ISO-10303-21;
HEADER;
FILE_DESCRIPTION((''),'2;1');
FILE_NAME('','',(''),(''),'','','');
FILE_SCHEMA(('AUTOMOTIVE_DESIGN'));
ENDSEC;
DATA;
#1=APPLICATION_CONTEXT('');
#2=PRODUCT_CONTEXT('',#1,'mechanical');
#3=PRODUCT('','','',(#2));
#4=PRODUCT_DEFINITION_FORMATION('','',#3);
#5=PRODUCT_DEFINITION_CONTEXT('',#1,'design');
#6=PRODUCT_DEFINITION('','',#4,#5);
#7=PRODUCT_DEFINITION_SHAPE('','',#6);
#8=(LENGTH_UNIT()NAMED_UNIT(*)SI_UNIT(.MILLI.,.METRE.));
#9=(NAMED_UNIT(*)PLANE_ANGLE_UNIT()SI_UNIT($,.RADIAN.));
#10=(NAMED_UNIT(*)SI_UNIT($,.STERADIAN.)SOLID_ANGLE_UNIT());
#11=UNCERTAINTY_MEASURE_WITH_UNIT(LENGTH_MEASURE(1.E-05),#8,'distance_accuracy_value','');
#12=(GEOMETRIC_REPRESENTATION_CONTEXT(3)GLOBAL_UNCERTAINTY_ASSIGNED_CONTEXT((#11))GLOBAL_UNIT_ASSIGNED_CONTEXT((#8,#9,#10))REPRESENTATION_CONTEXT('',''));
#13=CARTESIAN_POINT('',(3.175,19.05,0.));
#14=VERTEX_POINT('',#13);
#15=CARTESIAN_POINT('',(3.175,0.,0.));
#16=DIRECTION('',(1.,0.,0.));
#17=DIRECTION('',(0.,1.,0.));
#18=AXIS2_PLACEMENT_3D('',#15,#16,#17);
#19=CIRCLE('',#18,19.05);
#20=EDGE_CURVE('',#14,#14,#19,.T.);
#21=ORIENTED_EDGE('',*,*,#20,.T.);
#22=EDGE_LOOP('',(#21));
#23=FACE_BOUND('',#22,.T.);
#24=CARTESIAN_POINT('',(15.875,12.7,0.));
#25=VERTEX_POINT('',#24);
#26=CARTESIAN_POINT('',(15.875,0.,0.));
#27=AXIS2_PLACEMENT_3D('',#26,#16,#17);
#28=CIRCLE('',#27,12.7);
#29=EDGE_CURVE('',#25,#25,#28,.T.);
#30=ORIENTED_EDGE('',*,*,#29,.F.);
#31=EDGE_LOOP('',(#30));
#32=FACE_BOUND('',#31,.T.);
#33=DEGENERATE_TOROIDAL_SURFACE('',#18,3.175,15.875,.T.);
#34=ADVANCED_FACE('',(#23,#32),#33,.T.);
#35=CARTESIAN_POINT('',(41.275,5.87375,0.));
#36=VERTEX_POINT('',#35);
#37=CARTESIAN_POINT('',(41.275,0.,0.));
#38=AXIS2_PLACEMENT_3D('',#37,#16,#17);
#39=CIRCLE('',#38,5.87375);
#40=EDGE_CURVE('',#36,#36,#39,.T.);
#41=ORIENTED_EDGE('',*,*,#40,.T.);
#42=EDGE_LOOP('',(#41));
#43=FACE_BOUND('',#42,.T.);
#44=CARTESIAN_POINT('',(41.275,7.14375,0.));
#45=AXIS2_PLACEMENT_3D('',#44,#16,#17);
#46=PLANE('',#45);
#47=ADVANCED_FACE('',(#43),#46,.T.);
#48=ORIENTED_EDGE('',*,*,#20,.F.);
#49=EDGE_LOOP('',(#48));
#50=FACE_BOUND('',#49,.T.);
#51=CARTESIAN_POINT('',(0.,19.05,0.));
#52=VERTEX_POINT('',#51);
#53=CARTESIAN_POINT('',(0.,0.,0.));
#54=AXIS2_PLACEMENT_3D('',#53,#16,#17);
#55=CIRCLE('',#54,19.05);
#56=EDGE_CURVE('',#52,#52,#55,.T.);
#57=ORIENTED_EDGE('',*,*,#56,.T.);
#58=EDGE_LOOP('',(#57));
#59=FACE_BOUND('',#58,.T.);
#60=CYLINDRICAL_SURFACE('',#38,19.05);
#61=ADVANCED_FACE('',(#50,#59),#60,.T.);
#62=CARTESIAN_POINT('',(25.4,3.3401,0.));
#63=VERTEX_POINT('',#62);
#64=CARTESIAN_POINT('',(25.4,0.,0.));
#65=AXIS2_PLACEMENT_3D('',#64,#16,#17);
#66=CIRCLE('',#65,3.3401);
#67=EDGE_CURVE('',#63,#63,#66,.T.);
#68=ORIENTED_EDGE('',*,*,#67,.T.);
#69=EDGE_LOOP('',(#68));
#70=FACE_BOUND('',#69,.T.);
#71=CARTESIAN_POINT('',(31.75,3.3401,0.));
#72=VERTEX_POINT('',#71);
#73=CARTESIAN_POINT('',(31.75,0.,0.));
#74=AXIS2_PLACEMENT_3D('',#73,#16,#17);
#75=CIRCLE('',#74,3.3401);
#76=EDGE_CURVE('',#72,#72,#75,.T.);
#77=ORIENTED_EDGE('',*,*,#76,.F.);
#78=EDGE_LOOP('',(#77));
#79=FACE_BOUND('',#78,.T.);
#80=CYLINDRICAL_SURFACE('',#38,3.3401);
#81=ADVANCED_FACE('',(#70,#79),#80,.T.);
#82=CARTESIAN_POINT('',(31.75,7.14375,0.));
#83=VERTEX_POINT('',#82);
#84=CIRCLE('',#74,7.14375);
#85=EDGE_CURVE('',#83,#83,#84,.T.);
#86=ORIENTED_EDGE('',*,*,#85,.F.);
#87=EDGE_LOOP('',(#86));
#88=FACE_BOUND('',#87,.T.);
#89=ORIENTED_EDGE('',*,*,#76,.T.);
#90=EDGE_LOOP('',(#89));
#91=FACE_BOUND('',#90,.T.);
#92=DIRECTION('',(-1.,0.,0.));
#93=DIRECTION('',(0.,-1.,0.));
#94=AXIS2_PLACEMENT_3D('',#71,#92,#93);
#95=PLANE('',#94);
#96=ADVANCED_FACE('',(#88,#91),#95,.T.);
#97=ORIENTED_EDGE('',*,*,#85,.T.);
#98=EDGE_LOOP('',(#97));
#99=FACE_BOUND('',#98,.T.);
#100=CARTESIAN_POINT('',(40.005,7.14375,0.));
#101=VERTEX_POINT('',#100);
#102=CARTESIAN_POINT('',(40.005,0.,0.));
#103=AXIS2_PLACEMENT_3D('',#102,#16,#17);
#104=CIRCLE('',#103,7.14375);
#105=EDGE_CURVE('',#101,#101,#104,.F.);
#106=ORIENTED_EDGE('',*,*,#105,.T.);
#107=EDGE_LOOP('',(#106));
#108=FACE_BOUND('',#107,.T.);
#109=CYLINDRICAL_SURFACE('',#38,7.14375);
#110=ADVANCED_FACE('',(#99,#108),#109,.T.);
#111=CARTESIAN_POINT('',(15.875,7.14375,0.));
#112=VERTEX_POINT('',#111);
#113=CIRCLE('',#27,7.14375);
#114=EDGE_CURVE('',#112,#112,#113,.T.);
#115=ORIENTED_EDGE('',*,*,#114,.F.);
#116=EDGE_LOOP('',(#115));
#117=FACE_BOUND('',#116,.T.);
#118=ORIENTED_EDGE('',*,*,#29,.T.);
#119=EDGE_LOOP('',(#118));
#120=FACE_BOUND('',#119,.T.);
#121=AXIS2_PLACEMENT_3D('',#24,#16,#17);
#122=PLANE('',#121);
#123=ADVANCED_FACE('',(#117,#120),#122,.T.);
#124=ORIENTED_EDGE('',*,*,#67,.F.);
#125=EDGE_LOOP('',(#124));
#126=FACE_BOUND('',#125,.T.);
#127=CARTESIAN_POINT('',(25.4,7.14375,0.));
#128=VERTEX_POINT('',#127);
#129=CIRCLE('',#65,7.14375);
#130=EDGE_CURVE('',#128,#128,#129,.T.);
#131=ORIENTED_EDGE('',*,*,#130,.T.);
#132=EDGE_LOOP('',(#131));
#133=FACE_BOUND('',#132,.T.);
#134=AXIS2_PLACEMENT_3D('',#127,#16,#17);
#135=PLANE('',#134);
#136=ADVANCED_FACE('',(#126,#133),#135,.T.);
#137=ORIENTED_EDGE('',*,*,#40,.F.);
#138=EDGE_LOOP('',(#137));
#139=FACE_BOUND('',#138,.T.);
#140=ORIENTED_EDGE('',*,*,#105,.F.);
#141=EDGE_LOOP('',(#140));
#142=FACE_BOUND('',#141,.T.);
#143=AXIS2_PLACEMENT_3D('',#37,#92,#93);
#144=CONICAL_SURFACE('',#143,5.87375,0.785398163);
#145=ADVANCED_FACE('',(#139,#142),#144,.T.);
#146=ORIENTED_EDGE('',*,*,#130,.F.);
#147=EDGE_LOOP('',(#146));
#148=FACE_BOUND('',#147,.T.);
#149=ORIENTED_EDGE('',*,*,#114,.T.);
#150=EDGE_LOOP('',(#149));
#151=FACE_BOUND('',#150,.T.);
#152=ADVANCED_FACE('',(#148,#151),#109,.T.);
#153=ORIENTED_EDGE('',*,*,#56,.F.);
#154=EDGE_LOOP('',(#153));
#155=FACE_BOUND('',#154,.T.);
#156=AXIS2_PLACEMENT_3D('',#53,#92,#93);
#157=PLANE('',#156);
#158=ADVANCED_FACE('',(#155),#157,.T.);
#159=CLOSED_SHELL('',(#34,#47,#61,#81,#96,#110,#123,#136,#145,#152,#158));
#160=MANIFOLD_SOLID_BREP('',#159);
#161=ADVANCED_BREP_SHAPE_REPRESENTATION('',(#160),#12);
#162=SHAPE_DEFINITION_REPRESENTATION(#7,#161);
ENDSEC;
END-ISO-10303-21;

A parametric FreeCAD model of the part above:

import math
import FreeCAD as App
import Part
import Sketcher

V = App.Vector
Q = App.Units.Quantity


def edges_at(feature, points):
    """Names of the edges that pass closest to the given points."""
    edges = feature.Shape.Edges
    near = lambda p: min(range(len(edges)), key=lambda i: edges[i].distToShape(Part.Vertex(*p))[0])
    return sorted({f"Edge{near(p) + 1}" for p in points})

doc = App.newDocument("Part")
params = doc.addObject("Spreadsheet::Sheet", "Params")
for row, (alias, value) in enumerate([
    ("sketch1_radius", "0.625 in"),
    ("sketch1_width", "0.25 in"),
    ("sketch1_height", "0.75 in"),
    ("sketch1_height2", "0.28125 in"),
    ("revolution_angle", "360 deg"),
    ("chamfer_size", "0.05 in"),
], start=1):
    params.set(f"A{row}", alias)
    params.set(f"B{row}", "=" + value)
    params.setAlias(f"B{row}", alias)

body = doc.addObject("PartDesign::Body", "Body")

# Sketch on XY plane
sketch1 = body.newObject("Sketcher::SketchObject", "Sketch")
sketch1.AttachmentSupport = (doc.getObject("XY_Plane"), [""])
sketch1.MapMode = "FlatFace"
sketch1.addGeometry([
    Part.LineSegment(V(0, 19.1, 0), V(0, 0, 0)),  # 0
    Part.LineSegment(V(0, 0, 0), V(41.3, 0, 0)),  # 1
    Part.LineSegment(V(41.3, 0, 0), V(41.3, 7.1, 0)),  # 2
    Part.LineSegment(V(41.3, 7.1, 0), V(31.8, 7.1, 0)),  # 3
    Part.LineSegment(V(31.8, 7.1, 0), V(31.8, 3.3, 0)),  # 4
    Part.LineSegment(V(31.8, 3.3, 0), V(25.4, 3.3, 0)),  # 5
    Part.LineSegment(V(25.4, 3.3, 0), V(25.4, 7.1, 0)),  # 6
    Part.LineSegment(V(25.4, 7.1, 0), V(15.9, 7.1, 0)),  # 7
    Part.LineSegment(V(15.9, 7.1, 0), V(15.9, 12.7, 0)),  # 8
    Part.ArcOfCircle(Part.Circle(V(3.2, 3.2, 0), V(0, 0, 1), 15.9), math.radians(37), math.radians(90)),  # 9
    Part.LineSegment(V(3.2, 19.1, 0), V(0, 19.1, 0)),  # 10
], False)
sketch1.addConstraint([
    Sketcher.Constraint("Coincident", 0, 2, 1, 1),
    Sketcher.Constraint("Coincident", 1, 2, 2, 1),
    Sketcher.Constraint("Coincident", 2, 2, 3, 1),
    Sketcher.Constraint("Coincident", 3, 2, 4, 1),
    Sketcher.Constraint("Coincident", 4, 2, 5, 1),
    Sketcher.Constraint("Coincident", 5, 2, 6, 1),
    Sketcher.Constraint("Coincident", 6, 2, 7, 1),
    Sketcher.Constraint("Coincident", 7, 2, 8, 1),
    Sketcher.Constraint("Coincident", 8, 2, 9, 1),
    Sketcher.Constraint("Tangent", 9, 2, 10, 1),
    Sketcher.Constraint("Coincident", 10, 2, 0, 1),
    Sketcher.Constraint("Vertical", 0),
    Sketcher.Constraint("Horizontal", 1),
    Sketcher.Constraint("Vertical", 2),
    Sketcher.Constraint("Horizontal", 3),
    Sketcher.Constraint("Vertical", 4),
    Sketcher.Constraint("Horizontal", 5),
    Sketcher.Constraint("Vertical", 6),
    Sketcher.Constraint("Horizontal", 7),
    Sketcher.Constraint("Vertical", 8),
    Sketcher.Constraint("Horizontal", 10),
    Sketcher.Constraint("Coincident", 0, 2, -1, 1),
    Sketcher.Constraint("Horizontal", 3, 2, 6, 2),
    Sketcher.Constraint("Equal", 3, 7),
    Sketcher.Constraint("DistanceX", -1, 1, 5, 2, Q("1 in")),
    Sketcher.Constraint("Radius", 9, Q("0.625 in")),
    Sketcher.Constraint("DistanceX", 5, 2, 5, 1, Q("0.25 in")),
    Sketcher.Constraint("DistanceY", 0, 2, 0, 1, Q("0.75 in")),
    Sketcher.Constraint("DistanceY", -1, 1, 8, 2, Q("0.5 in")),
    Sketcher.Constraint("DistanceX", 9, 3, 1, 2, Q("1.5 in")),
    Sketcher.Constraint("DistanceY", 2, 1, 2, 2, Q("0.28125 in")),
    Sketcher.Constraint("DistanceY", -1, 1, 4, 2, Q("0.1315 in")),
])
sketch1.setExpression("Constraints[25]", "Params.sketch1_radius")
sketch1.setExpression("Constraints[26]", "Params.sketch1_width")
sketch1.setExpression("Constraints[27]", "Params.sketch1_height")
sketch1.setExpression("Constraints[30]", "Params.sketch1_height2")
revolution = body.newObject("PartDesign::Revolution", "Revolution")
revolution.Profile = sketch1
revolution.ReferenceAxis = (sketch1, ["H_Axis"])
revolution.setExpression("Angle", "Params.revolution_angle")
doc.recompute()

chamfer = body.newObject("PartDesign::Chamfer", "Chamfer")
chamfer.Base = (revolution, edges_at(revolution, [(41.275, -7.144, 0)]))
chamfer.setExpression("Size", "Params.chamfer_size")

doc.recompute()
